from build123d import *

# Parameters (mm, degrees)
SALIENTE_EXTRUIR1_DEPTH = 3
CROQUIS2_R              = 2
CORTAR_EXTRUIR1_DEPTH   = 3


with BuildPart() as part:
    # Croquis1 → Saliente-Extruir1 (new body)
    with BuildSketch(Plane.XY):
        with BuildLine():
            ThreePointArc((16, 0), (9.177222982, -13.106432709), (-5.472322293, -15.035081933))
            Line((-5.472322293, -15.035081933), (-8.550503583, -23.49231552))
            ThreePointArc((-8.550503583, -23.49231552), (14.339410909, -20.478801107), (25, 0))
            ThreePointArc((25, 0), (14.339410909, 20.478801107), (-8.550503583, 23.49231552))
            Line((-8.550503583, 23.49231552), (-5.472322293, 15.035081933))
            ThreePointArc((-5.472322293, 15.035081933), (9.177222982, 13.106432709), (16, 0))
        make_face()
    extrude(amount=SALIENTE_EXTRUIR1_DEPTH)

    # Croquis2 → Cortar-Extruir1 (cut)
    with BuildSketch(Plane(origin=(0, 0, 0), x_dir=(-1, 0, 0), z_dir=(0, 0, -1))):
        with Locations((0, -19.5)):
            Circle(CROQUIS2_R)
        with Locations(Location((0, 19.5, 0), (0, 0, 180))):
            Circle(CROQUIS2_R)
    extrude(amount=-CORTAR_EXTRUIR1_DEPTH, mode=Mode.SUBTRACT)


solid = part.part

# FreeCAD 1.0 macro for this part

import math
import FreeCAD as App
import Part
import Sketcher

V = App.Vector
Q = App.Units.Quantity

doc = App.newDocument("Part")
body = doc.addObject("PartDesign::Body", "Body")

# Sketch on XY plane
sketch1 = doc.addObject("Sketcher::SketchObject", "Sketch")
body.addObject(sketch1)
sketch1.AttachmentSupport = (doc.XY_Plane, [""])
sketch1.MapMode = "FlatFace"
sketch1.addGeometry([
    Part.ArcOfCircle(Part.Circle(V(0, 0, 0), V(0, 0, 1), 16), math.radians(-110), math.radians(0)),  # 0
    Part.LineSegment(V(-5, -15, 0), V(-9, -23, 0)),  # 1
    Part.ArcOfCircle(Part.Circle(V(0, 0, 0), V(0, 0, 1), 25), math.radians(-110), math.radians(0)),  # 2
    Part.ArcOfCircle(Part.Circle(V(0, 0, 0), V(0, 0, 1), 25), math.radians(0), math.radians(110)),  # 3
    Part.LineSegment(V(-9, 23, 0), V(-5, 15, 0)),  # 4
    Part.ArcOfCircle(Part.Circle(V(0, 0, 0), V(0, 0, 1), 16), math.radians(0), math.radians(110)),  # 5
], False)
sketch1.addConstraint([
    Sketcher.Constraint("Coincident", 0, 1, 1, 1),
    Sketcher.Constraint("Coincident", 1, 2, 2, 1),
    Sketcher.Constraint("Tangent", 2, 2, 3, 1),
    Sketcher.Constraint("Coincident", 3, 2, 4, 1),
    Sketcher.Constraint("Coincident", 4, 2, 5, 2),
    Sketcher.Constraint("Tangent", 5, 1, 0, 2),
    Sketcher.Constraint("Coincident", 0, 3, -1, 1),
    Sketcher.Constraint("Coincident", 2, 3, -1, 1),
    Sketcher.Constraint("Equal", 2, 3),
    Sketcher.Constraint("Equal", 0, 5),
    Sketcher.Constraint("PointOnObject", 2, 2, -1),
    Sketcher.Constraint("PointOnObject", 5, 1, -1),
    Sketcher.Constraint("Vertical", 1, 2, 3, 2),
    Sketcher.Constraint("Vertical", 0, 1, 4, 2),
    Sketcher.Constraint("Radius", 0, 16.0),
    Sketcher.Constraint("Radius", 2, 25.0),
    Sketcher.Constraint("Angle", 1, Q("-110 deg")),
    Sketcher.Constraint("DistanceY", 0, 1, -1, 1, 15.035082),
])
pad1 = doc.addObject("PartDesign::Pad", "Pad")
body.addObject(pad1)
pad1.Profile = sketch1
pad1.Length = 3

# Sketch on XY plane
sketch2 = doc.addObject("Sketcher::SketchObject", "Sketch001")
body.addObject(sketch2)
sketch2.AttachmentSupport = (doc.XY_Plane, [""])
sketch2.MapMode = "FlatFace"
sketch2.addGeometry([
    Part.Circle(V(0, -19.5, 0), V(0, 0, 1), 2),
    Part.Circle(V(0, 19.5, 0), V(0, 0, 1), 2),
], False)
sketch2.addConstraint([
    Sketcher.Constraint("Equal", 0, 1),
    Sketcher.Constraint("Symmetric", 0, 3, 1, 3, -1, 1),
    Sketcher.Constraint("PointOnObject", 0, 3, -2),
    Sketcher.Constraint("Diameter", 0, 4.0),
    Sketcher.Constraint("DistanceY", 0, 3, 1, 3, 39.0),
])
pocket1 = doc.addObject("PartDesign::Pocket", "Pocket")
body.addObject(pocket1)
pocket1.Profile = sketch2
pocket1.Length = 3
pocket1.Reversed = True

doc.recompute()
